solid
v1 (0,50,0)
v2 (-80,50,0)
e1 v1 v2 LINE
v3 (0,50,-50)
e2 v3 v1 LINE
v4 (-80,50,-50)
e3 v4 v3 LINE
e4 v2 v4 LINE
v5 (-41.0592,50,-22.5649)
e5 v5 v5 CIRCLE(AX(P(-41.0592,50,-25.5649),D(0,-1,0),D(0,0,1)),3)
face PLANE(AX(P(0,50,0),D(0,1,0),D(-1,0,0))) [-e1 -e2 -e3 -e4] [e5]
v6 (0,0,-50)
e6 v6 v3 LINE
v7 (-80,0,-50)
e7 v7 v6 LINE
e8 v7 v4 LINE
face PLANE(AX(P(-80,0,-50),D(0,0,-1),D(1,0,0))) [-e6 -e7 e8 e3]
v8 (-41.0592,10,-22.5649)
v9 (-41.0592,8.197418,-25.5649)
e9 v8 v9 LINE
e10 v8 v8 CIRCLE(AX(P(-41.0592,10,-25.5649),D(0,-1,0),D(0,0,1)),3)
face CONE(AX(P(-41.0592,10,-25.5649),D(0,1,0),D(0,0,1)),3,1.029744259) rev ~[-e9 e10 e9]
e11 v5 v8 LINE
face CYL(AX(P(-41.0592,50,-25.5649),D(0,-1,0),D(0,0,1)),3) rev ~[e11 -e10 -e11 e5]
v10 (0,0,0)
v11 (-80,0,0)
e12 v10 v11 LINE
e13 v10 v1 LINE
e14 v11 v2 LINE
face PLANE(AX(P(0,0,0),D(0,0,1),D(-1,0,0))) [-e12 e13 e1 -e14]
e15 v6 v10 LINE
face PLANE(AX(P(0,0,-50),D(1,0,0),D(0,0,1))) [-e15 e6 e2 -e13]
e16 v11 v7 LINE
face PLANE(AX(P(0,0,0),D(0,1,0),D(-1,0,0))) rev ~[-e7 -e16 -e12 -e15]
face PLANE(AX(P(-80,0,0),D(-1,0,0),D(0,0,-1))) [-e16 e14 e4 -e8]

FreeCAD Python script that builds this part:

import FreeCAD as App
import Part
import Sketcher
from FreeCAD import Vector
Q = App.Units.Quantity

doc = App.newDocument("Part")
params = doc.addObject("Spreadsheet::Sheet", "Params")
for row, (alias, value) in enumerate([
    ("sketch1_width", "80 mm"),
    ("sketch1_height", "50 mm"),
    ("pad1_length", "50 mm"),
    ("sketch2_diameter", "6 mm"),
    ("hole_diameter", "6 mm"),
    ("hole_depth", "40 mm"),
], start=1):
    params.set(f"A{row}", alias)
    params.set(f"B{row}", "=" + value)
    params.setAlias(f"B{row}", alias)

body = doc.addObject("PartDesign::Body", "Body")

# Sketch on XZ plane
sketch1 = doc.addObject("Sketcher::SketchObject", "Sketch")
body.addObject(sketch1)
sketch1.AttachmentSupport = (doc.XZ_Plane, [""])
sketch1.MapMode = "FlatFace"
sketch1.addGeometry(Part.LineSegment(Vector(-80, 0, 0), Vector(0, 0, 0)), False)
sketch1.addGeometry(Part.LineSegment(Vector(0, 0, 0), Vector(0, -50, 0)), False)
sketch1.addGeometry(Part.LineSegment(Vector(0, -50, 0), Vector(-80, -50, 0)), False)
sketch1.addGeometry(Part.LineSegment(Vector(-80, -50, 0), Vector(-80, 0, 0)), False)
sketch1.addConstraint(Sketcher.Constraint("Coincident", 0, 2, 1, 1))
sketch1.addConstraint(Sketcher.Constraint("Coincident", 1, 2, 2, 1))
sketch1.addConstraint(Sketcher.Constraint("Coincident", 2, 2, 3, 1))
sketch1.addConstraint(Sketcher.Constraint("Coincident", 3, 2, 0, 1))
sketch1.addConstraint(Sketcher.Constraint("Horizontal", 0))
sketch1.addConstraint(Sketcher.Constraint("Vertical", 1))
sketch1.addConstraint(Sketcher.Constraint("Horizontal", 2))
sketch1.addConstraint(Sketcher.Constraint("Vertical", 3))
sketch1.addConstraint(Sketcher.Constraint("Coincident", 0, 2, -1, 1))
sketch1.addConstraint(Sketcher.Constraint("DistanceX", 0, 1, 0, 2, Q("80 mm")))
sketch1.addConstraint(Sketcher.Constraint("DistanceY", 1, 2, 1, 1, Q("50 mm")))
sketch1.setExpression("Constraints[9]", "Params.sketch1_width")
sketch1.setExpression("Constraints[10]", "Params.sketch1_height")
pad1 = doc.addObject("PartDesign::Pad", "Pad")
body.addObject(pad1)
pad1.Profile = sketch1
pad1.setExpression("Length", "Params.pad1_length")
pad1.Reversed = True

# Sketch on XZ plane
sketch2 = doc.addObject("Sketcher::SketchObject", "Sketch001")
body.addObject(sketch2)
sketch2.AttachmentSupport = (doc.XZ_Plane, [""])
sketch2.MapMode = "FlatFace"
sketch2.AttachmentOffset = App.Placement(Vector(0, 0, -50), App.Rotation())
sketch2.addGeometry(Part.Circle(Vector(-41.1, -25.6, 0), Vector(0, 0, 1), 3), False)
sketch2.addConstraint(Sketcher.Constraint("Diameter", 0, Q("6 mm")))
sketch2.addConstraint(Sketcher.Constraint("DistanceY", 0, 3, -1, 1, Q("25.565 mm")))
sketch2.addConstraint(Sketcher.Constraint("DistanceX", 0, 3, -1, 1, Q("41.0592 mm")))
sketch2.setExpression("Constraints[0]", "Params.sketch2_diameter")
doc.recompute()
hole = doc.addObject("PartDesign::Hole", "Hole")
body.addObject(hole)
hole.Profile = sketch2
hole.ThreadType = "None"
hole.setExpression("Diameter", "Params.hole_diameter")
hole.DepthType = "Dimension"
hole.setExpression("Depth", "Params.hole_depth")
hole.DrillPoint = "Angled"
hole.DrillPointAngle = 118
hole.Reversed = True

doc.recompute()
